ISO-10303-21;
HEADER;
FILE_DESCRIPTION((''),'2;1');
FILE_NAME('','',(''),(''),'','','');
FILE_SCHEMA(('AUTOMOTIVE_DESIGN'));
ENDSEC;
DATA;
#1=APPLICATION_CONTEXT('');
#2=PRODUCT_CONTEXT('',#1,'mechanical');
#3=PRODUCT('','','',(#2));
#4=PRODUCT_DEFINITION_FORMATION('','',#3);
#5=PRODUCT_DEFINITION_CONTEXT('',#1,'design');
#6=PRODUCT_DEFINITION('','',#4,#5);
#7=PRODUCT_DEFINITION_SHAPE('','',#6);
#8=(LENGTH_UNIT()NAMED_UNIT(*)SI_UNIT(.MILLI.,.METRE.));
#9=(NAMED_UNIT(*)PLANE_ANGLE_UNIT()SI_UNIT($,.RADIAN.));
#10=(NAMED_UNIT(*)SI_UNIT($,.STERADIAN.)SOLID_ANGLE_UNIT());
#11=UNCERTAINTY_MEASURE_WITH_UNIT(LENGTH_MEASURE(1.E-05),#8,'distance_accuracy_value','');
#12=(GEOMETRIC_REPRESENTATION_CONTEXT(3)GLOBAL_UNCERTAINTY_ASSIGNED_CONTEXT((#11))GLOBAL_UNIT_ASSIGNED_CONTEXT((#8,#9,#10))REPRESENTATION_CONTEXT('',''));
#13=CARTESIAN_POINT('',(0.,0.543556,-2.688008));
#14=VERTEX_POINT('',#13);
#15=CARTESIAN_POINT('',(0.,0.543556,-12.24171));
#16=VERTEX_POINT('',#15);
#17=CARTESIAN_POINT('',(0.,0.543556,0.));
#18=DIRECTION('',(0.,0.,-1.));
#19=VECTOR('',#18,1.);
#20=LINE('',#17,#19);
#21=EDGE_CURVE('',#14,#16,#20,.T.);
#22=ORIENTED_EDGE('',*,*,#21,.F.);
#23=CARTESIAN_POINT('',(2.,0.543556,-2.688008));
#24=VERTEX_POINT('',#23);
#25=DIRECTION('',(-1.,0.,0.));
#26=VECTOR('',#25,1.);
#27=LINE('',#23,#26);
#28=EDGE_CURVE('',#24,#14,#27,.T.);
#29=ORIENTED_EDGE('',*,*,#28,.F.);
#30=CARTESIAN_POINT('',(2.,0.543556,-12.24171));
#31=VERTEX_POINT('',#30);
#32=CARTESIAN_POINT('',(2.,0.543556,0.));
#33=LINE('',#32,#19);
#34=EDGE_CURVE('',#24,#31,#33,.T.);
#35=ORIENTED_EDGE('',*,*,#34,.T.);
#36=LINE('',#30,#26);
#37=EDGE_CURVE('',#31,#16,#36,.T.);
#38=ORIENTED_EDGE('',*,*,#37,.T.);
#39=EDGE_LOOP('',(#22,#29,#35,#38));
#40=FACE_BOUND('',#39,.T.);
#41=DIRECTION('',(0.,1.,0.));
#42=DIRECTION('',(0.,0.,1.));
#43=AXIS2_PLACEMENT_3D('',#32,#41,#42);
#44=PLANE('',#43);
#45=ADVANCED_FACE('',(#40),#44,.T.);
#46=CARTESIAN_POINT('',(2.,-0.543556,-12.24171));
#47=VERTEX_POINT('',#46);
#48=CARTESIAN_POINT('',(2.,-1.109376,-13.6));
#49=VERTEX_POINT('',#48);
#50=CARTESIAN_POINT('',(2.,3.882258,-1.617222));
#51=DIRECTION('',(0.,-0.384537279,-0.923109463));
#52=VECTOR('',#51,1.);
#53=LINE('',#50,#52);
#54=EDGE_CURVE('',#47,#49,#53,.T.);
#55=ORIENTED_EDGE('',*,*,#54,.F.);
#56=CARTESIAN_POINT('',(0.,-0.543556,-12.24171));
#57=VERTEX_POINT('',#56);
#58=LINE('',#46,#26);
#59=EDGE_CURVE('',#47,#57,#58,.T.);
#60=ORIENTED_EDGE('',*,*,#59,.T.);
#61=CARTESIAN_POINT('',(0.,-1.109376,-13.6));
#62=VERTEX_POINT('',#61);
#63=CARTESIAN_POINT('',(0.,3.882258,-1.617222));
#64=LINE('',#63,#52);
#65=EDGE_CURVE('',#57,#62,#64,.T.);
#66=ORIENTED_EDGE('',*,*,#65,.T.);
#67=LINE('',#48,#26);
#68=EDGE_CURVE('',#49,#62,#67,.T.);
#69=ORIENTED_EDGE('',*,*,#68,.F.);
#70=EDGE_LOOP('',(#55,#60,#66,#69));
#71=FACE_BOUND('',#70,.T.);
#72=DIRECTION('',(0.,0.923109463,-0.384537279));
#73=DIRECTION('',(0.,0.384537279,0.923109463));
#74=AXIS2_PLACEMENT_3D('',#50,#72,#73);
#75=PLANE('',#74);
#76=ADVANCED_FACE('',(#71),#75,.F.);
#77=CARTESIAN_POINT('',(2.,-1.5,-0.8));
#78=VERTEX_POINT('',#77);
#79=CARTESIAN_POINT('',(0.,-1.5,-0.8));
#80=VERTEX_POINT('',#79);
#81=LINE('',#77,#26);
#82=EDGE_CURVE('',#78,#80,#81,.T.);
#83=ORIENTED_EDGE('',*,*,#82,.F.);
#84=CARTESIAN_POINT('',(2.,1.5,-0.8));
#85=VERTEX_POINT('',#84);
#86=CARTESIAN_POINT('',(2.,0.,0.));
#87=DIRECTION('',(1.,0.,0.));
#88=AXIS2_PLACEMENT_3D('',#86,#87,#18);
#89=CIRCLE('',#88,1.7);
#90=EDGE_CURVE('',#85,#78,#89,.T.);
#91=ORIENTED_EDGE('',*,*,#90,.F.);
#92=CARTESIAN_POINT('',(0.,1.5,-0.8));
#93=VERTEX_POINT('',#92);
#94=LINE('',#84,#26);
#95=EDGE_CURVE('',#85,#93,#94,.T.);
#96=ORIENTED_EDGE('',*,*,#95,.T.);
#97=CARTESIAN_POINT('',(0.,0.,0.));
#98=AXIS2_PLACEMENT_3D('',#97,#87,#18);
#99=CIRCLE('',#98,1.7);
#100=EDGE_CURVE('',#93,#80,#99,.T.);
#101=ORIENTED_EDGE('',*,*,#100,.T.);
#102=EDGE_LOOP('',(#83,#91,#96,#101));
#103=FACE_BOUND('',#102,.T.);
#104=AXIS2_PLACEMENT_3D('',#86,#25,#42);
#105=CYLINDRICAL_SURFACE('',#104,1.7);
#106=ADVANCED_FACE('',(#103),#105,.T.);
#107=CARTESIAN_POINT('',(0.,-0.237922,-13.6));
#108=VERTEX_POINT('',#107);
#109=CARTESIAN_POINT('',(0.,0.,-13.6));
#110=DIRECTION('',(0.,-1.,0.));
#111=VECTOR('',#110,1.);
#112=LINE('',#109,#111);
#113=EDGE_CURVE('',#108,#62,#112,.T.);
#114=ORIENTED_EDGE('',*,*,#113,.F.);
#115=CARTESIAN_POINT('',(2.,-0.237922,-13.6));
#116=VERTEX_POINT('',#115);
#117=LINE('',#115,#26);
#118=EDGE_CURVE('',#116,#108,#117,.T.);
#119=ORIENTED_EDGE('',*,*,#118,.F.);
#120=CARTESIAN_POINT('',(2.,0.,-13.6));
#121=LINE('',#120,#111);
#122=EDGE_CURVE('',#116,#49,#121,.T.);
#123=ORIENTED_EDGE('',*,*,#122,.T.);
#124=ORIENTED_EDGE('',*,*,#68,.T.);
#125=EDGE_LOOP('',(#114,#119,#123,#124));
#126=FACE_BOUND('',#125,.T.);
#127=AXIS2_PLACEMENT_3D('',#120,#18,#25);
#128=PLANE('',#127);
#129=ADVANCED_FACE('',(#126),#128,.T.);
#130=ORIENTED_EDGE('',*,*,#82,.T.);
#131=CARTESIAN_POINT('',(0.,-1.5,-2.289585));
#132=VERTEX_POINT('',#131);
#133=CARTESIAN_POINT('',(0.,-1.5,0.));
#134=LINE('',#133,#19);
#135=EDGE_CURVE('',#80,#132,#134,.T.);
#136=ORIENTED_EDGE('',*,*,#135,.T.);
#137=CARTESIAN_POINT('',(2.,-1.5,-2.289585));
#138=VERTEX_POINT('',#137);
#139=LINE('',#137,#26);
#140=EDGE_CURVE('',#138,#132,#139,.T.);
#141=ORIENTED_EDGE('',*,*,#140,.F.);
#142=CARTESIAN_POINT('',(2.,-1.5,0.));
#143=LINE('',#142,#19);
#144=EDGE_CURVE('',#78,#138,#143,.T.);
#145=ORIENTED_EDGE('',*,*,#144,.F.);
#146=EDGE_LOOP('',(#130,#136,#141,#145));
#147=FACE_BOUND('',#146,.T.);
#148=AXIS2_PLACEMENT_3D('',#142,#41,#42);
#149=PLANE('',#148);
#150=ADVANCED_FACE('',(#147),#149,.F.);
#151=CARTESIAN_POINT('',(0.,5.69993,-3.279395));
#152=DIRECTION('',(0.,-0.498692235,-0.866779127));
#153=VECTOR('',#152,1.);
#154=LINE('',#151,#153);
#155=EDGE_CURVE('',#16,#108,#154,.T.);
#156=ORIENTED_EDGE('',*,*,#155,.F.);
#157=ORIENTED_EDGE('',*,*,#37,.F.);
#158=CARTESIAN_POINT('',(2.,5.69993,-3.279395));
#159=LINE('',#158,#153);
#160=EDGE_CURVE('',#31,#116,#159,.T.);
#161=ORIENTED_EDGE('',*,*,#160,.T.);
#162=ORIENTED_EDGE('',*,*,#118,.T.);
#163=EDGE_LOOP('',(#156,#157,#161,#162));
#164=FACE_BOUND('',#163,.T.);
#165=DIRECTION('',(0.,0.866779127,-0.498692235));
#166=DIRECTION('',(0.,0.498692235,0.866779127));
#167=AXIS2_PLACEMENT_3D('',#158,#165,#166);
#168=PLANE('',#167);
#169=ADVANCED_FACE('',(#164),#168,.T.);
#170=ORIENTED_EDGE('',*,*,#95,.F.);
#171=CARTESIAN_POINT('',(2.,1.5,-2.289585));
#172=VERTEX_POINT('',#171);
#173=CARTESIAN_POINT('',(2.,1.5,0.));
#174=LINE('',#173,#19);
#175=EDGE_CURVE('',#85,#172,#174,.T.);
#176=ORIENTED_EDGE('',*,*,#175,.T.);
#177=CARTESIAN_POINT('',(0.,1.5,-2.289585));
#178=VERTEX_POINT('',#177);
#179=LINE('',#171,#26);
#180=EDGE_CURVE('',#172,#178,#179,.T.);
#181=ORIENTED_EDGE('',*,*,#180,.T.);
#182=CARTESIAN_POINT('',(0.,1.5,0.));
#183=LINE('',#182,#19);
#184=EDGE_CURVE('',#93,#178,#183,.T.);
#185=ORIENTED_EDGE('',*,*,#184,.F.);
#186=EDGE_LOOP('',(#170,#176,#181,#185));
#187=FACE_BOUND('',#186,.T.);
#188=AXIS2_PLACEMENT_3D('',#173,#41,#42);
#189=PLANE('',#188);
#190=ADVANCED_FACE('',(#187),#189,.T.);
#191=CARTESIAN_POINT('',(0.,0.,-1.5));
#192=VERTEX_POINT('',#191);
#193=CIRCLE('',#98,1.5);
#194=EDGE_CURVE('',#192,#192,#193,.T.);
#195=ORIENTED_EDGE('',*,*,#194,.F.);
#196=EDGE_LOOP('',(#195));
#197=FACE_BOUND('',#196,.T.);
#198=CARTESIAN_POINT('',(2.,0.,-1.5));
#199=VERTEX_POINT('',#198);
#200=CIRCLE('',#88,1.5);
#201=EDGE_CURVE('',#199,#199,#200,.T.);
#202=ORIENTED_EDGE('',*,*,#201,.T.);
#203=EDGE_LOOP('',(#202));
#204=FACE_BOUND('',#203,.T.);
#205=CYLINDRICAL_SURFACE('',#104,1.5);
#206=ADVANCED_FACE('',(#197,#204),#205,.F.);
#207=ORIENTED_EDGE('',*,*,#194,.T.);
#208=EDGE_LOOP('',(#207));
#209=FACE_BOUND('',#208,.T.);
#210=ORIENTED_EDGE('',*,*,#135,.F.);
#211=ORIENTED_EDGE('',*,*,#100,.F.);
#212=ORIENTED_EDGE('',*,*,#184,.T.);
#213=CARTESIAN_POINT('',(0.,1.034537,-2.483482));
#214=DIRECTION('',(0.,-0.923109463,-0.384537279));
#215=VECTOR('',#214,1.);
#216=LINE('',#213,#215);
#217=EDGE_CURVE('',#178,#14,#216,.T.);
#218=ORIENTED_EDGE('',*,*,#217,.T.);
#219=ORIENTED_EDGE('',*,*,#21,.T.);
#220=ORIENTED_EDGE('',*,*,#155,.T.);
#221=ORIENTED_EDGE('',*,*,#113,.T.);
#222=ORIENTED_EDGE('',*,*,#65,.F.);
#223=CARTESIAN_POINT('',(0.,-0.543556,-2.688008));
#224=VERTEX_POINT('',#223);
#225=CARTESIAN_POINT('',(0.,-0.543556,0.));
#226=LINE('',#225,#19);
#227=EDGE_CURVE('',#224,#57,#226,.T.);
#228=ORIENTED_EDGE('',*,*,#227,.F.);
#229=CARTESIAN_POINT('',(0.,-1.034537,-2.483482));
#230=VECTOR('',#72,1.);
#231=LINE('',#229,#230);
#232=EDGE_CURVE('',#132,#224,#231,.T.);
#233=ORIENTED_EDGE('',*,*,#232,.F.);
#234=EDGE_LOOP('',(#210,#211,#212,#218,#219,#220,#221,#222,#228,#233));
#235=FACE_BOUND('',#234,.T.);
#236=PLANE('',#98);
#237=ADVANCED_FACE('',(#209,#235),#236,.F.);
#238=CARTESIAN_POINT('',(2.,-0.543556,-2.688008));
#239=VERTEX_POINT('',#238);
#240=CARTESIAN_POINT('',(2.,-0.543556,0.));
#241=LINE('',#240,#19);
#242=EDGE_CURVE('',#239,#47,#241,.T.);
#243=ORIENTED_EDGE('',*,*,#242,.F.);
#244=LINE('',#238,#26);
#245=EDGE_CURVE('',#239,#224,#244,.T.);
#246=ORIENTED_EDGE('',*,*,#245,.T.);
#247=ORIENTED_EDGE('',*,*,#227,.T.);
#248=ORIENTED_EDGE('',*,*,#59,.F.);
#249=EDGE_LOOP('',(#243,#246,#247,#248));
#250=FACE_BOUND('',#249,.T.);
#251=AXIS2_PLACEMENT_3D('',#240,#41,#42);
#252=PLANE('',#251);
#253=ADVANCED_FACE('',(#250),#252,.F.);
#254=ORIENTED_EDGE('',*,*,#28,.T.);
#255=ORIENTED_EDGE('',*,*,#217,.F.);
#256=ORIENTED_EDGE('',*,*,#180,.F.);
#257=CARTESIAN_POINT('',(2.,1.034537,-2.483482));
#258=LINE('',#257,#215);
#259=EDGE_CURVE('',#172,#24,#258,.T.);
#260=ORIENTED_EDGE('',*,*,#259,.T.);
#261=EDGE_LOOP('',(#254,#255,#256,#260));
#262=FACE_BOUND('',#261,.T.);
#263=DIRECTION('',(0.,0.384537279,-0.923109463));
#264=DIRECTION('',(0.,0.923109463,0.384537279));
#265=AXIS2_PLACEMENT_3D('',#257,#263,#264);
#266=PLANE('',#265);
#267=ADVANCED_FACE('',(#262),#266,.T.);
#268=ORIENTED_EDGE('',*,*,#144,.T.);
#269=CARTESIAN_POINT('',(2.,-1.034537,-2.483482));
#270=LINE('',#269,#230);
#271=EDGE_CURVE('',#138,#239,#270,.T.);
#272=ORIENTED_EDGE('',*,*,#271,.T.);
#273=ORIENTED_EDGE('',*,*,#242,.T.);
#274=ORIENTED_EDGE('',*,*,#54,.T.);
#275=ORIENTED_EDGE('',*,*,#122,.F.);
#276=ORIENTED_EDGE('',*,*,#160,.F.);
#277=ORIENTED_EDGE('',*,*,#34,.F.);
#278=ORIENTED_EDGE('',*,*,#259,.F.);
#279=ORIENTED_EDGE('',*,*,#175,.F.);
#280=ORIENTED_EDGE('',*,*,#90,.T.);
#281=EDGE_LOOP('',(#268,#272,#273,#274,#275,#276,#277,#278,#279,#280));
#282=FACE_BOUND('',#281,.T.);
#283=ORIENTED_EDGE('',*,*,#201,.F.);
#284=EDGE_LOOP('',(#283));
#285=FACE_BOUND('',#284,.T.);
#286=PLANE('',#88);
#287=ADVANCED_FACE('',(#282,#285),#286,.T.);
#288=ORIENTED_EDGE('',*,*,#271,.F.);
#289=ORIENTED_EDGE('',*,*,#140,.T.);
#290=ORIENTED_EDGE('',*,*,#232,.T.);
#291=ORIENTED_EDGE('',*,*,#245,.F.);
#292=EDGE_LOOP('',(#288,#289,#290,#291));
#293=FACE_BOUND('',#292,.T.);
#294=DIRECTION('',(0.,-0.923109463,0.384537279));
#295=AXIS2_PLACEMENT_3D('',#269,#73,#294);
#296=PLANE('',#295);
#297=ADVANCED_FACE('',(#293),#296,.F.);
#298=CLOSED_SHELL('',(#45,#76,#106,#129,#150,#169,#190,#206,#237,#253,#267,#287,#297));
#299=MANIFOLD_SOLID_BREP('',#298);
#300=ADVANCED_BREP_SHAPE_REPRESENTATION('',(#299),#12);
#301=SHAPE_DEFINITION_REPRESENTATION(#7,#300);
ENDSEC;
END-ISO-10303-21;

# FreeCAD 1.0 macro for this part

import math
import FreeCAD as App
import Part
import Sketcher
from FreeCAD import Vector

doc = App.newDocument("Part")
body = doc.addObject("PartDesign::Body", "Body")

# Sketch on YZ plane
sketch1 = doc.addObject("Sketcher::SketchObject", "Sketch")
body.addObject(sketch1)
sketch1.AttachmentSupport = (doc.YZ_Plane, [""])
sketch1.MapMode = "FlatFace"
sketch1.addGeometry([
    Part.LineSegment(Vector(1.5, -2.289585, 0), Vector(1.5, -0.8, 0)),  # 0
    Part.ArcOfCircle(Part.Circle(Vector(0, 0, 0), Vector(0, 0, 1), 1.7), math.radians(-28.072487), math.radians(208.072487)),  # 1
    Part.LineSegment(Vector(-1.5, -0.8, 0), Vector(-1.5, -2.289585, 0)),  # 2
    Part.LineSegment(Vector(-1.5, -2.289585, 0), Vector(-0.543556, -2.688008, 0)),  # 3
    Part.LineSegment(Vector(-0.543556, -2.688008, 0), Vector(-0.543556, -12.24171, 0)),  # 4
    Part.LineSegment(Vector(-0.543556, -12.24171, 0), Vector(-1.109376, -13.6, 0)),  # 5
    Part.LineSegment(Vector(-1.109376, -13.6, 0), Vector(-0.237922, -13.6, 0)),  # 6
    Part.LineSegment(Vector(-0.237922, -13.6, 0), Vector(0.543556, -12.24171, 0)),  # 7
    Part.LineSegment(Vector(0.543556, -12.24171, 0), Vector(0.543556, -2.688008, 0)),  # 8
    Part.LineSegment(Vector(0.543556, -2.688008, 0), Vector(1.5, -2.289585, 0)),  # 9
    Part.Circle(Vector(0, 0, 0), Vector(0, 0, 1), 1.5),  # 10
], False)
sketch1.addConstraint([
    Sketcher.Constraint("Coincident", 0, 2, 1, 1),
    Sketcher.Constraint("Coincident", 1, 2, 2, 1),
    Sketcher.Constraint("Coincident", 2, 2, 3, 1),
    Sketcher.Constraint("Coincident", 3, 2, 4, 1),
    Sketcher.Constraint("Coincident", 4, 2, 5, 1),
    Sketcher.Constraint("Coincident", 5, 2, 6, 1),
    Sketcher.Constraint("Coincident", 6, 2, 7, 1),
    Sketcher.Constraint("Coincident", 7, 2, 8, 1),
    Sketcher.Constraint("Coincident", 8, 2, 9, 1),
    Sketcher.Constraint("Coincident", 9, 2, 0, 1),
    Sketcher.Constraint("Vertical", 0),
    Sketcher.Constraint("Vertical", 2),
    Sketcher.Constraint("Vertical", 4),
    Sketcher.Constraint("Horizontal", 6),
    Sketcher.Constraint("Vertical", 8),
    Sketcher.Constraint("Coincident", 1, 3, -1, 1),
    Sketcher.Constraint("Coincident", 10, 3, -1, 1),
    Sketcher.Constraint("Symmetric", 4, 2, 7, 2, -2),
    Sketcher.Constraint("Symmetric", 2, 2, 9, 2, -2),
    Sketcher.Constraint("Perpendicular", 3, 5),
    Sketcher.Constraint("Horizontal", 3, 2, 8, 2),
    Sketcher.Constraint("Diameter", 10, 3.0),
    Sketcher.Constraint("Radius", 1, 1.7),
    Sketcher.Constraint("DistanceX", 1, 2, 0, 2, 3.0),
    Sketcher.Constraint("DistanceY", 5, 2, -1, 1, 13.6),
    Sketcher.Constraint("DistanceY", 4, 2, 4, 1, 9.553701),
    Sketcher.Constraint("Distance", 3, 1.036111),
    Sketcher.Constraint("Distance", 5, 1.471429),
    Sketcher.Constraint("DistanceX", 6, 1, 6, 2, 0.871454),
    Sketcher.Constraint("DistanceY", 0, 1, 0, 2, 1.489585),
])
pad1 = doc.addObject("PartDesign::Pad", "Pad")
body.addObject(pad1)
pad1.Profile = sketch1
pad1.Length = 2

doc.recompute()
